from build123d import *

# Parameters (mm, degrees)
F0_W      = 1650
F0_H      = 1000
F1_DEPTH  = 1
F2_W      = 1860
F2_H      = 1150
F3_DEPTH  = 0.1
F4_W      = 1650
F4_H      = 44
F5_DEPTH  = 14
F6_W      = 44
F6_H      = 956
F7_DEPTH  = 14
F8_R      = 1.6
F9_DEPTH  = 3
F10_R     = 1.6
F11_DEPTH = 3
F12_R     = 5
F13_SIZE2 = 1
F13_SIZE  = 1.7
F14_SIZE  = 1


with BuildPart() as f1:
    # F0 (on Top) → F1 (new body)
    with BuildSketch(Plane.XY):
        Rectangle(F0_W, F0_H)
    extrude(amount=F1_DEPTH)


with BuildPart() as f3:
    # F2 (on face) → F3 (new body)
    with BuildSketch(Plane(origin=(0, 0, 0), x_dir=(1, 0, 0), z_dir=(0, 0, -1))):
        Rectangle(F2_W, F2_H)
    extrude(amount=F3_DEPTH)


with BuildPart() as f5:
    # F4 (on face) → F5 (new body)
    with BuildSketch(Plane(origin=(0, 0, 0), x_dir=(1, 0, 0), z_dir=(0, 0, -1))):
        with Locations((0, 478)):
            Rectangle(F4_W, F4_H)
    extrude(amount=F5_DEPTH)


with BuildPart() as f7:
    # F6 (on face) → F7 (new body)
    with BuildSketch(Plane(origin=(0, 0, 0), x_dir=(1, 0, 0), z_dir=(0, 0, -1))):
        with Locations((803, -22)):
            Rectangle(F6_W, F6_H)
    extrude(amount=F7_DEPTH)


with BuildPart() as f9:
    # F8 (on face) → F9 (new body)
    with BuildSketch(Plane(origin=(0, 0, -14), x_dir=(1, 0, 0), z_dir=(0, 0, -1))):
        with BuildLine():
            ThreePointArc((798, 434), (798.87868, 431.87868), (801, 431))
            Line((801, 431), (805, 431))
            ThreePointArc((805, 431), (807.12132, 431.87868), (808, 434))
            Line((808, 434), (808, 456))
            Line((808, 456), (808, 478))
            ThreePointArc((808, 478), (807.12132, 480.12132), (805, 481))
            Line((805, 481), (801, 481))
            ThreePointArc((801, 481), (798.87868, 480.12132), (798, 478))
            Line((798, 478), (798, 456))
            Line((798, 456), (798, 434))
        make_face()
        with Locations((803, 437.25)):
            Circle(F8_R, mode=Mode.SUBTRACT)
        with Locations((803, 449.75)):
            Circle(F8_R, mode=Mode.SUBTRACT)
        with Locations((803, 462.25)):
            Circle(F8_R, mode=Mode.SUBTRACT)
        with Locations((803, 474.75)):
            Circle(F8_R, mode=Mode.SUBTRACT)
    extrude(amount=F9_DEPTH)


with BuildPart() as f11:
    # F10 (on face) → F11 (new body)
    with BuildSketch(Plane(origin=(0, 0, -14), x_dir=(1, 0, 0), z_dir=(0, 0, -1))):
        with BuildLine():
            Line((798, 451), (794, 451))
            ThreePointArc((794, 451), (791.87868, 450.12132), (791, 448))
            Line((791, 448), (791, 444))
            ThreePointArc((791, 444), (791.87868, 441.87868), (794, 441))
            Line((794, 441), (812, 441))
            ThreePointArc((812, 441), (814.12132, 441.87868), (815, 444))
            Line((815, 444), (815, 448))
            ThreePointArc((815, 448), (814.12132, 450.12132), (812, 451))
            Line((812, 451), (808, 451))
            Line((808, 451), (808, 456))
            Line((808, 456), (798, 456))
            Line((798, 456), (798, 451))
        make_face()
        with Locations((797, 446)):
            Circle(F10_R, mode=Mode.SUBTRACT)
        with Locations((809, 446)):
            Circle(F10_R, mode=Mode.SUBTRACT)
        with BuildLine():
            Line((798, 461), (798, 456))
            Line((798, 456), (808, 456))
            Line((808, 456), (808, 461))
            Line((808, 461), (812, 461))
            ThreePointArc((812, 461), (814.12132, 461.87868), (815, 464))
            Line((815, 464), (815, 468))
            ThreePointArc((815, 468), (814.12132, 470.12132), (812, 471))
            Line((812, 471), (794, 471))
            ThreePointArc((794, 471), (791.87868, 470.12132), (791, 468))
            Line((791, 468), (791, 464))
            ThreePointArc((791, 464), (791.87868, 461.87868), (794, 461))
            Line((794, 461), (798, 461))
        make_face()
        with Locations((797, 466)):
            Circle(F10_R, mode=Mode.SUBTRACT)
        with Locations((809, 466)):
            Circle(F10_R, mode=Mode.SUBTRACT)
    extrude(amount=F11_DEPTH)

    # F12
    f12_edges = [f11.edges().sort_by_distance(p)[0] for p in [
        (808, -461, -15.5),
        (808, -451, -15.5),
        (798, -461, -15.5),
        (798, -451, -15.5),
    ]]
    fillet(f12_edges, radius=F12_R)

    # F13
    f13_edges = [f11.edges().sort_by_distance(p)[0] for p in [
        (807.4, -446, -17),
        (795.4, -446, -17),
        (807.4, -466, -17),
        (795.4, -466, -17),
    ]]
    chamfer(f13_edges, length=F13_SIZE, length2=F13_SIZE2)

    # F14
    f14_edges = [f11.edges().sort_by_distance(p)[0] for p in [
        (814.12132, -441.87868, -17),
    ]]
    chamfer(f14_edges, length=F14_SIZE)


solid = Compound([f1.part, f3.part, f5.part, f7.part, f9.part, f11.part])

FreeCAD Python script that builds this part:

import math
import FreeCAD as App
import Part
import Sketcher


def edges_at(feature, points):
    """Names of the edges that pass closest to the given points."""
    edges = feature.Shape.Edges
    near = lambda p: min(range(len(edges)), key=lambda i: edges[i].distToShape(Part.Vertex(*p))[0])
    return sorted({f"Edge{near(p) + 1}" for p in points})

doc = App.newDocument("Part")
body = doc.addObject("PartDesign::Body", "Body")

sketch1 = doc.addObject("Sketcher::SketchObject", "Sketch")
body.addObject(sketch1)
sketch1.AttachmentSupport = (doc.XY_Plane, [""])
sketch1.MapMode = "FlatFace"
sketch1.addGeometry([
    Part.LineSegment(App.Vector(-825, 500, 0), App.Vector(-825, -500, 0)),
    Part.LineSegment(App.Vector(-825, -500, 0), App.Vector(825, -500, 0)),
    Part.LineSegment(App.Vector(825, -500, 0), App.Vector(825, 500, 0)),
    Part.LineSegment(App.Vector(825, 500, 0), App.Vector(-825, 500, 0)),
], False)
sketch1.addConstraint([
    Sketcher.Constraint("Coincident", 0, 2, 1, 1),
    Sketcher.Constraint("Coincident", 1, 2, 2, 1),
    Sketcher.Constraint("Coincident", 2, 2, 3, 1),
    Sketcher.Constraint("Coincident", 3, 2, 0, 1),
    Sketcher.Constraint("Vertical", 0),
    Sketcher.Constraint("Horizontal", 1),
    Sketcher.Constraint("Vertical", 2),
    Sketcher.Constraint("Horizontal", 3),
    Sketcher.Constraint("Symmetric", 0, 2, 2, 2, -1, 1),
    Sketcher.Constraint("DistanceX", 1, 1, 1, 2, 1650.0),
    Sketcher.Constraint("DistanceY", 0, 2, 0, 1, 1000.0),
])
pad1 = doc.addObject("PartDesign::Pad", "Pad")
body.addObject(pad1)
pad1.Profile = sketch1
pad1.Length = 1
body2 = doc.addObject("PartDesign::Body", "Body001")

sketch2 = doc.addObject("Sketcher::SketchObject", "Sketch001")
body2.addObject(sketch2)
sketch2.AttachmentSupport = (doc.getObject("XY_Plane001"), [""])
sketch2.MapMode = "FlatFace"
sketch2.addGeometry([
    Part.LineSegment(App.Vector(-930, -575, 0), App.Vector(-930, 575, 0)),
    Part.LineSegment(App.Vector(-930, 575, 0), App.Vector(930, 575, 0)),
    Part.LineSegment(App.Vector(930, 575, 0), App.Vector(930, -575, 0)),
    Part.LineSegment(App.Vector(930, -575, 0), App.Vector(-930, -575, 0)),
], False)
sketch2.addConstraint([
    Sketcher.Constraint("Coincident", 0, 2, 1, 1),
    Sketcher.Constraint("Coincident", 1, 2, 2, 1),
    Sketcher.Constraint("Coincident", 2, 2, 3, 1),
    Sketcher.Constraint("Coincident", 3, 2, 0, 1),
    Sketcher.Constraint("Vertical", 0),
    Sketcher.Constraint("Horizontal", 1),
    Sketcher.Constraint("Vertical", 2),
    Sketcher.Constraint("Horizontal", 3),
    Sketcher.Constraint("Symmetric", 0, 2, 2, 2, -1, 1),
    Sketcher.Constraint("DistanceX", 1, 1, 1, 2, 1860.0),
    Sketcher.Constraint("DistanceY", 0, 1, 0, 2, 1150.0),
])
pad2 = doc.addObject("PartDesign::Pad", "Pad001")
body2.addObject(pad2)
pad2.Profile = sketch2
pad2.Length = 0.1
pad2.Reversed = True
body3 = doc.addObject("PartDesign::Body", "Body002")

sketch3 = doc.addObject("Sketcher::SketchObject", "Sketch002")
body3.addObject(sketch3)
sketch3.AttachmentSupport = (doc.getObject("XY_Plane002"), [""])
sketch3.MapMode = "FlatFace"
sketch3.addGeometry([
    Part.LineSegment(App.Vector(-825, -500, 0), App.Vector(-825, -456, 0)),
    Part.LineSegment(App.Vector(-825, -456, 0), App.Vector(825, -456, 0)),
    Part.LineSegment(App.Vector(825, -456, 0), App.Vector(825, -500, 0)),
    Part.LineSegment(App.Vector(825, -500, 0), App.Vector(-825, -500, 0)),
], False)
sketch3.addConstraint([
    Sketcher.Constraint("Coincident", 0, 2, 1, 1),
    Sketcher.Constraint("Coincident", 1, 2, 2, 1),
    Sketcher.Constraint("Coincident", 2, 2, 3, 1),
    Sketcher.Constraint("Coincident", 3, 2, 0, 1),
    Sketcher.Constraint("Vertical", 0),
    Sketcher.Constraint("Horizontal", 1),
    Sketcher.Constraint("Vertical", 2),
    Sketcher.Constraint("Horizontal", 3),
    Sketcher.Constraint("DistanceX", 1, 1, 1, 2, 1650.0),
    Sketcher.Constraint("DistanceY", 0, 1, 0, 2, 44.0),
    Sketcher.Constraint("DistanceX", 0, 2, -1, 1, 825.0),
    Sketcher.Constraint("DistanceY", 0, 2, -1, 1, 456.0),
])
pad3 = doc.addObject("PartDesign::Pad", "Pad002")
body3.addObject(pad3)
pad3.Profile = sketch3
pad3.Length = 14
pad3.Reversed = True
body4 = doc.addObject("PartDesign::Body", "Body003")

sketch4 = doc.addObject("Sketcher::SketchObject", "Sketch003")
body4.addObject(sketch4)
sketch4.AttachmentSupport = (doc.getObject("XY_Plane003"), [""])
sketch4.MapMode = "FlatFace"
sketch4.addGeometry([
    Part.LineSegment(App.Vector(781, -456, 0), App.Vector(781, 500, 0)),
    Part.LineSegment(App.Vector(781, 500, 0), App.Vector(825, 500, 0)),
    Part.LineSegment(App.Vector(825, 500, 0), App.Vector(825, -456, 0)),
    Part.LineSegment(App.Vector(825, -456, 0), App.Vector(781, -456, 0)),
], False)
sketch4.addConstraint([
    Sketcher.Constraint("Coincident", 0, 2, 1, 1),
    Sketcher.Constraint("Coincident", 1, 2, 2, 1),
    Sketcher.Constraint("Coincident", 2, 2, 3, 1),
    Sketcher.Constraint("Coincident", 3, 2, 0, 1),
    Sketcher.Constraint("Vertical", 0),
    Sketcher.Constraint("Horizontal", 1),
    Sketcher.Constraint("Vertical", 2),
    Sketcher.Constraint("Horizontal", 3),
    Sketcher.Constraint("DistanceX", 1, 1, 1, 2, 44.0),
    Sketcher.Constraint("DistanceY", 0, 1, 0, 2, 956.0),
    Sketcher.Constraint("DistanceX", -1, 1, 0, 2, 781.0),
    Sketcher.Constraint("DistanceY", -1, 1, 0, 2, 500.0),
])
pad4 = doc.addObject("PartDesign::Pad", "Pad003")
body4.addObject(pad4)
pad4.Profile = sketch4
pad4.Length = 14
pad4.Reversed = True
body5 = doc.addObject("PartDesign::Body", "Body004")

sketch5 = doc.addObject("Sketcher::SketchObject", "Sketch004")
body5.addObject(sketch5)
sketch5.AttachmentSupport = (doc.getObject("XY_Plane004"), [""])
sketch5.MapMode = "FlatFace"
sketch5.AttachmentOffset = App.Placement(App.Vector(0, 0, -14), App.Rotation())
sketch5.addGeometry([
    Part.ArcOfCircle(Part.Circle(App.Vector(801, -434, 0), App.Vector(0, 0, 1), 3), math.radians(90), math.radians(180)),
    Part.LineSegment(App.Vector(801, -431, 0), App.Vector(805, -431, 0)),
    Part.ArcOfCircle(Part.Circle(App.Vector(805, -434, 0), App.Vector(0, 0, 1), 3), math.radians(0), math.radians(90)),
    Part.LineSegment(App.Vector(808, -434, 0), App.Vector(808, -478, 0)),
    Part.ArcOfCircle(Part.Circle(App.Vector(805, -478, 0), App.Vector(0, 0, 1), 3), math.radians(-90), math.radians(0)),
    Part.LineSegment(App.Vector(805, -481, 0), App.Vector(801, -481, 0)),
    Part.ArcOfCircle(Part.Circle(App.Vector(801, -478, 0), App.Vector(0, 0, 1), 3), math.radians(-180), math.radians(-90)),
    Part.LineSegment(App.Vector(798, -478, 0), App.Vector(798, -434, 0)),
    Part.Circle(App.Vector(803, -437.2, 0), App.Vector(0, 0, 1), 1.6),
    Part.Circle(App.Vector(803, -449.8, 0), App.Vector(0, 0, 1), 1.6),
    Part.Circle(App.Vector(803, -462.2, 0), App.Vector(0, 0, 1), 1.6),
    Part.Circle(App.Vector(803, -474.8, 0), App.Vector(0, 0, 1), 1.6),
], False)
sketch5.addConstraint([
    Sketcher.Constraint("Tangent", 0, 1, 1, 1),
    Sketcher.Constraint("Tangent", 1, 2, 2, 2),
    Sketcher.Constraint("Tangent", 2, 1, 3, 1),
    Sketcher.Constraint("Tangent", 3, 2, 4, 2),
    Sketcher.Constraint("Tangent", 4, 1, 5, 1),
    Sketcher.Constraint("Tangent", 5, 2, 6, 2),
    Sketcher.Constraint("Tangent", 6, 1, 7, 1),
    Sketcher.Constraint("Tangent", 7, 2, 0, 2),
    Sketcher.Constraint("Horizontal", 1),
    Sketcher.Constraint("Vertical", 3),
    Sketcher.Constraint("Horizontal", 5),
    Sketcher.Constraint("Vertical", 7),
    Sketcher.Constraint("Equal", 0, 2),
    Sketcher.Constraint("Equal", 2, 4),
    Sketcher.Constraint("Equal", 4, 6),
    Sketcher.Constraint("Equal", 8, 9),
    Sketcher.Constraint("Equal", 9, 10),
    Sketcher.Constraint("Equal", 10, 11),
    Sketcher.Constraint("Vertical", 8, 3, 9, 3),
    Sketcher.Constraint("Vertical", 9, 3, 10, 3),
    Sketcher.Constraint("Vertical", 10, 3, 11, 3),
    Sketcher.Constraint("Radius", 0, 3.000001),
    Sketcher.Constraint("Diameter", 8, 3.2),
    Sketcher.Constraint("DistanceX", 1, 1, 1, 2, 4.0),
    Sketcher.Constraint("DistanceY", 3, 2, 3, 1, 44.0),
    Sketcher.Constraint("DistanceX", -1, 1, 0, 3, 801.000001),
    Sketcher.Constraint("DistanceY", 0, 3, -1, 1, 434.000001),
    Sketcher.Constraint("DistanceX", -1, 1, 8, 3, 803.0),
    Sketcher.Constraint("DistanceY", 10, 3, 8, 3, 25.0),
    Sketcher.Constraint("DistanceY", 11, 3, 9, 3, 25.0),
    Sketcher.Constraint("DistanceY", 9, 3, 8, 3, 12.5),
    Sketcher.Constraint("DistanceY", 8, 3, -1, 1, 437.25),
])
pad5 = doc.addObject("PartDesign::Pad", "Pad004")
body5.addObject(pad5)
pad5.Profile = sketch5
pad5.Length = 3
pad5.Reversed = True
body6 = doc.addObject("PartDesign::Body", "Body005")

sketch6 = doc.addObject("Sketcher::SketchObject", "Sketch005")
body6.addObject(sketch6)
sketch6.AttachmentSupport = (doc.getObject("XY_Plane005"), [""])
sketch6.MapMode = "FlatFace"
sketch6.AttachmentOffset = App.Placement(App.Vector(0, 0, -14), App.Rotation())
sketch6.addGeometry([
    Part.LineSegment(App.Vector(798, -451, 0), App.Vector(794, -451, 0)),
    Part.ArcOfCircle(Part.Circle(App.Vector(794, -448, 0), App.Vector(0, 0, 1), 3), math.radians(-180), math.radians(-90)),
    Part.LineSegment(App.Vector(791, -448, 0), App.Vector(791, -444, 0)),
    Part.ArcOfCircle(Part.Circle(App.Vector(794, -444, 0), App.Vector(0, 0, 1), 3), math.radians(90), math.radians(180)),
    Part.LineSegment(App.Vector(794, -441, 0), App.Vector(812, -441, 0)),
    Part.ArcOfCircle(Part.Circle(App.Vector(812, -444, 0), App.Vector(0, 0, 1), 3), math.radians(0), math.radians(90)),
    Part.LineSegment(App.Vector(815, -444, 0), App.Vector(815, -448, 0)),
    Part.ArcOfCircle(Part.Circle(App.Vector(812, -448, 0), App.Vector(0, 0, 1), 3), math.radians(-90), math.radians(0)),
    Part.LineSegment(App.Vector(812, -451, 0), App.Vector(808, -451, 0)),
    Part.LineSegment(App.Vector(808, -451, 0), App.Vector(808, -461, 0)),
    Part.LineSegment(App.Vector(808, -461, 0), App.Vector(812, -461, 0)),
    Part.ArcOfCircle(Part.Circle(App.Vector(812, -464, 0), App.Vector(0, 0, 1), 3), math.radians(0), math.radians(90)),
    Part.LineSegment(App.Vector(815, -464, 0), App.Vector(815, -468, 0)),
    Part.ArcOfCircle(Part.Circle(App.Vector(812, -468, 0), App.Vector(0, 0, 1), 3), math.radians(-90), math.radians(0)),
    Part.LineSegment(App.Vector(812, -471, 0), App.Vector(794, -471, 0)),
    Part.ArcOfCircle(Part.Circle(App.Vector(794, -468, 0), App.Vector(0, 0, 1), 3), math.radians(-180), math.radians(-90)),
    Part.LineSegment(App.Vector(791, -468, 0), App.Vector(791, -464, 0)),
    Part.ArcOfCircle(Part.Circle(App.Vector(794, -464, 0), App.Vector(0, 0, 1), 3), math.radians(90), math.radians(180)),
    Part.LineSegment(App.Vector(794, -461, 0), App.Vector(798, -461, 0)),
    Part.LineSegment(App.Vector(798, -461, 0), App.Vector(798, -451, 0)),
    Part.Circle(App.Vector(797, -446, 0), App.Vector(0, 0, 1), 1.6),
    Part.Circle(App.Vector(809, -446, 0), App.Vector(0, 0, 1), 1.6),
    Part.Circle(App.Vector(797, -466, 0), App.Vector(0, 0, 1), 1.6),
    Part.Circle(App.Vector(809, -466, 0), App.Vector(0, 0, 1), 1.6),
], False)
sketch6.addConstraint([
    Sketcher.Constraint("Tangent", 0, 2, 1, 2),
    Sketcher.Constraint("Tangent", 1, 1, 2, 1),
    Sketcher.Constraint("Tangent", 2, 2, 3, 2),
    Sketcher.Constraint("Tangent", 3, 1, 4, 1),
    Sketcher.Constraint("Tangent", 4, 2, 5, 2),
    Sketcher.Constraint("Tangent", 5, 1, 6, 1),
    Sketcher.Constraint("Tangent", 6, 2, 7, 2),
    Sketcher.Constraint("Tangent", 7, 1, 8, 1),
    Sketcher.Constraint("Coincident", 8, 2, 9, 1),
    Sketcher.Constraint("Coincident", 9, 2, 10, 1),
    Sketcher.Constraint("Tangent", 10, 2, 11, 2),
    Sketcher.Constraint("Tangent", 11, 1, 12, 1),
    Sketcher.Constraint("Tangent", 12, 2, 13, 2),
    Sketcher.Constraint("Tangent", 13, 1, 14, 1),
    Sketcher.Constraint("Tangent", 14, 2, 15, 2),
    Sketcher.Constraint("Tangent", 15, 1, 16, 1),
    Sketcher.Constraint("Tangent", 16, 2, 17, 2),
    Sketcher.Constraint("Tangent", 17, 1, 18, 1),
    Sketcher.Constraint("Coincident", 18, 2, 19, 1),
    Sketcher.Constraint("Coincident", 19, 2, 0, 1),
    Sketcher.Constraint("Horizontal", 0),
    Sketcher.Constraint("Vertical", 2),
    Sketcher.Constraint("Horizontal", 4),
    Sketcher.Constraint("Vertical", 6),
    Sketcher.Constraint("Horizontal", 8),
    Sketcher.Constraint("Vertical", 9),
    Sketcher.Constraint("Horizontal", 10),
    Sketcher.Constraint("Vertical", 12),
    Sketcher.Constraint("Horizontal", 14),
    Sketcher.Constraint("Vertical", 16),
    Sketcher.Constraint("Horizontal", 18),
    Sketcher.Constraint("Vertical", 19),
    Sketcher.Constraint("Equal", 1, 3),
    Sketcher.Constraint("Equal", 3, 5),
    Sketcher.Constraint("Equal", 5, 7),
    Sketcher.Constraint("Equal", 7, 11),
    Sketcher.Constraint("Equal", 11, 13),
    Sketcher.Constraint("Equal", 13, 15),
    Sketcher.Constraint("Equal", 15, 17),
    Sketcher.Constraint("Equal", 20, 21),
    Sketcher.Constraint("Equal", 21, 22),
    Sketcher.Constraint("Equal", 22, 23),
    Sketcher.Constraint("Horizontal", 1, 3, 7, 3),
    Sketcher.Constraint("Horizontal", 11, 3, 17, 3),
    Sketcher.Constraint("Horizontal", 20, 3, 21, 3),
    Sketcher.Constraint("Horizontal", 22, 3, 23, 3),
    Sketcher.Constraint("Vertical", 7, 3, 11, 3),
    Sketcher.Constraint("Vertical", 3, 3, 15, 3),
    Sketcher.Constraint("Vertical", 20, 3, 22, 3),
    Sketcher.Constraint("Vertical", 21, 3, 23, 3),
    Sketcher.Constraint("Equal", 0, 8),
    Sketcher.Constraint("Equal", 18, 2),
    Sketcher.Constraint("Equal", 6, 12),
    Sketcher.Constraint("Radius", 1, 3.000001),
    Sketcher.Constraint("Diameter", 20, 3.2),
    Sketcher.Constraint("DistanceX", 0, 2, 0, 1, 4.0),
    Sketcher.Constraint("DistanceX", 4, 1, 4, 2, 18.0),
    Sketcher.Constraint("DistanceY", 9, 2, 9, 1, 10.0),
    Sketcher.Constraint("DistanceX", -1, 1, 1, 3, 794.000001),
    Sketcher.Constraint("DistanceY", 1, 3, -1, 1, 447.999999),
    Sketcher.Constraint("DistanceX", -1, 1, 20, 3, 797.0),
    Sketcher.Constraint("DistanceY", 20, 3, -1, 1, 446.0),
    Sketcher.Constraint("DistanceX", -1, 1, 21, 3, 809.0),
    Sketcher.Constraint("DistanceY", 22, 3, -1, 1, 466.0),
])
pad6 = doc.addObject("PartDesign::Pad", "Pad005")
body6.addObject(pad6)
pad6.Profile = sketch6
pad6.Length = 3
pad6.Reversed = True
doc.recompute()

fillet = doc.addObject("PartDesign::Fillet", "Fillet")
body6.addObject(fillet)
fillet.Base = (pad6, edges_at(pad6, [
    (808, -461, -15.5),
    (808, -451, -15.5),
    (798, -461, -15.5),
    (798, -451, -15.5),
]))
fillet.Radius = 5
doc.recompute()

chamfer = doc.addObject("PartDesign::Chamfer", "Chamfer")
body6.addObject(chamfer)
chamfer.Base = (fillet, edges_at(fillet, [
    (807.4, -446, -17),
    (795.4, -446, -17),
    (807.4, -466, -17),
    (795.4, -466, -17),
]))
chamfer.ChamferType = "Two distances"
chamfer.Size = 1.7
chamfer.Size2 = 1
doc.recompute()

chamfer2 = doc.addObject("PartDesign::Chamfer", "Chamfer001")
body6.addObject(chamfer2)
chamfer2.Base = (chamfer, edges_at(chamfer, [(814.121, -441.879, -17)]))
chamfer2.Size = 1

doc.recompute()
